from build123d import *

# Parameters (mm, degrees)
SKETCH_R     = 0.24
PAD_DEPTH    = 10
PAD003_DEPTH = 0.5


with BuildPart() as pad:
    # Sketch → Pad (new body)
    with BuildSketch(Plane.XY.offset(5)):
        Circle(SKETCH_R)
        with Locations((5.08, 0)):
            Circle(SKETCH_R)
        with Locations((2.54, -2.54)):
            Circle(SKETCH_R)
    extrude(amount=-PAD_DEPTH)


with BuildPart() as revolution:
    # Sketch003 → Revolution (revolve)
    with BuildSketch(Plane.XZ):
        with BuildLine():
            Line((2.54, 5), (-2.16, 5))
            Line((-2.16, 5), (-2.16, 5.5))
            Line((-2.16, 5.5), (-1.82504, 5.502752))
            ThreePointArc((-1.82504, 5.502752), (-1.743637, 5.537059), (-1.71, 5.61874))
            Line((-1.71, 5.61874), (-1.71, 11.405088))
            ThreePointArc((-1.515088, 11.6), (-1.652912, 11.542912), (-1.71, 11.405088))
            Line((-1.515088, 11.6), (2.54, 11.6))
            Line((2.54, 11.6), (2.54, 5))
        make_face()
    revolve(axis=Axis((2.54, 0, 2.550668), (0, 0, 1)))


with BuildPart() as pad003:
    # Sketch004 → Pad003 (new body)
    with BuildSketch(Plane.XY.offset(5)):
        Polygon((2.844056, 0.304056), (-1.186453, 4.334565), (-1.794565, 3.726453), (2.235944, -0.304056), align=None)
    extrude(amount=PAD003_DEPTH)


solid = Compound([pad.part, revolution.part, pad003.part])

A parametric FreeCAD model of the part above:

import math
import FreeCAD as App
import Part
import Sketcher
from FreeCAD import Vector
Q = App.Units.Quantity


def add_polygon(sketch, points):
    """Adds a closed chain of lines whose ends are joined by coincident constraints."""
    first, n = sketch.GeometryCount, len(points)
    for a, b in zip(points, points[1:] + points[:1]):
        sketch.addGeometry(Part.LineSegment(App.Vector(*a, 0), App.Vector(*b, 0)), False)
    for i in range(n):
        sketch.addConstraint(Sketcher.Constraint("Coincident", first + i, 2, first + (i + 1) % n, 1))

doc = App.newDocument("Part")
params = doc.addObject("Spreadsheet::Sheet", "Params")
for row, (alias, value) in enumerate([
    ("sketch1_diameter", "0.48 mm"),
    ("pad1_length", "10 mm"),
    ("sketch2_width", "4.7 mm"),
    ("sketch2_height", "6.6 mm"),
    ("sketch2_height2", "0.5 mm"),
    ("revolution_angle", "360 deg"),
    ("sketch3_length", "5.7 mm"),
    ("sketch3_length2", "0.86 mm"),
    ("pad2_length", "0.5 mm"),
], start=1):
    params.set(f"A{row}", alias)
    params.set(f"B{row}", "=" + value)
    params.setAlias(f"B{row}", alias)

body = doc.addObject("PartDesign::Body", "Body")
body.AllowCompound = True

sketch1 = body.newObject("Sketcher::SketchObject", "Sketch")
sketch1.AttachmentSupport = (doc.getObject("XY_Plane"), [""])
sketch1.MapMode = "FlatFace"
sketch1.AttachmentOffset = App.Placement(Vector(0, 0, 5), App.Rotation())
sketch1.addGeometry(Part.Circle(Vector(0, 0, 0), Vector(0, 0, 1), 0.24), False)
sketch1.addGeometry(Part.Circle(Vector(5.08, 0, 0), Vector(0, 0, 1), 0.24), False)
sketch1.addGeometry(Part.Circle(Vector(2.54, -2.54, 0), Vector(0, 0, 1), 0.24), False)
sketch1.addConstraint(Sketcher.Constraint("Coincident", 0, 3, -1, 1))
sketch1.addConstraint(Sketcher.Constraint("Equal", 0, 1))
sketch1.addConstraint(Sketcher.Constraint("Equal", 1, 2))
sketch1.addConstraint(Sketcher.Constraint("PointOnObject", 1, 3, -1))
sketch1.addConstraint(Sketcher.Constraint("Diameter", 0, Q("0.48 mm")))
sketch1.addConstraint(Sketcher.Constraint("DistanceX", -1, 1, 1, 3, Q("5.08 mm")))
sketch1.addConstraint(Sketcher.Constraint("DistanceX", -1, 1, 2, 3, Q("2.54 mm")))
sketch1.addConstraint(Sketcher.Constraint("DistanceY", 2, 3, -1, 1, Q("2.54 mm")))
sketch1.setExpression("Constraints[4]", "Params.sketch1_diameter")
pad1 = body.newObject("PartDesign::Pad", "Pad")
pad1.Profile = sketch1
pad1.setExpression("Length", "Params.pad1_length")
pad1.Reversed = True
body2 = doc.addObject("PartDesign::Body", "Body001")

sketch2 = body2.newObject("Sketcher::SketchObject", "Sketch001")
sketch2.AttachmentSupport = (doc.getObject("XZ_Plane001"), [""])
sketch2.MapMode = "FlatFace"
sketch2.addGeometry(Part.LineSegment(Vector(-2.16, 5, 0), Vector(2.54, 5, 0)), False)
sketch2.addGeometry(Part.LineSegment(Vector(2.54, 5, 0), Vector(2.54, 11.6, 0)), False)
sketch2.addGeometry(Part.LineSegment(Vector(2.54, 11.6, 0), Vector(-1.52, 11.6, 0)), False)
sketch2.addGeometry(Part.ArcOfCircle(Part.Circle(Vector(-1.52, 11.41, 0), Vector(0, 0, 1), 0.19), math.radians(90), math.radians(180)), False)
sketch2.addGeometry(Part.LineSegment(Vector(-1.71, 11.41, 0), Vector(-1.71, 5.62, 0)), False)
sketch2.addGeometry(Part.ArcOfCircle(Part.Circle(Vector(-1.83, 5.62, 0), Vector(0, 0, 1), 0.12), math.radians(-90), math.radians(0)), False)
sketch2.addGeometry(Part.LineSegment(Vector(-1.83, 5.5, 0), Vector(-2.16, 5.5, 0)), False)
sketch2.addGeometry(Part.LineSegment(Vector(-2.16, 5.5, 0), Vector(-2.16, 5, 0)), False)
sketch2.addGeometry(Part.LineSegment(Vector(2.54, 5, 0), Vector(2.54, 11.6, 0)), True)
sketch2.addConstraint(Sketcher.Constraint("Coincident", 0, 2, 1, 1))
sketch2.addConstraint(Sketcher.Constraint("Coincident", 1, 2, 2, 1))
sketch2.addConstraint(Sketcher.Constraint("Coincident", 2, 2, 3, 1))
sketch2.addConstraint(Sketcher.Constraint("Coincident", 3, 2, 4, 1))
sketch2.addConstraint(Sketcher.Constraint("Tangent", 4, 2, 5, 2))
sketch2.addConstraint(Sketcher.Constraint("Coincident", 5, 1, 6, 1))
sketch2.addConstraint(Sketcher.Constraint("Coincident", 6, 2, 7, 1))
sketch2.addConstraint(Sketcher.Constraint("Coincident", 7, 2, 0, 1))
sketch2.addConstraint(Sketcher.Constraint("Horizontal", 0))
sketch2.addConstraint(Sketcher.Constraint("Vertical", 1))
sketch2.addConstraint(Sketcher.Constraint("Horizontal", 2))
sketch2.addConstraint(Sketcher.Constraint("Vertical", 4))
sketch2.addConstraint(Sketcher.Constraint("Vertical", 7))
sketch2.addConstraint(Sketcher.Constraint("Vertical", 8))
sketch2.addConstraint(Sketcher.Constraint("Coincident", 8, 1, 0, 2))
sketch2.addConstraint(Sketcher.Constraint("Horizontal", 2, 2, 8, 2))
sketch2.addConstraint(Sketcher.Constraint("Vertical", 3, 3, 2, 2))
sketch2.addConstraint(Sketcher.Constraint("DistanceX", 0, 1, 0, 2, Q("4.7 mm")))
sketch2.addConstraint(Sketcher.Constraint("DistanceY", 1, 1, 1, 2, Q("6.6 mm")))
sketch2.addConstraint(Sketcher.Constraint("DistanceY", 7, 2, 7, 1, Q("0.5 mm")))
sketch2.addConstraint(Sketcher.Constraint("DistanceY", -1, 1, 0, 2, Q("5 mm")))
sketch2.addConstraint(Sketcher.Constraint("DistanceX", -1, 1, 0, 2, Q("2.54 mm")))
sketch2.addConstraint(Sketcher.Constraint("DistanceX", 3, 2, -1, 1, Q("1.71 mm")))
sketch2.addConstraint(Sketcher.Constraint("Radius", 3, Q("0.194911 mm")))
sketch2.addConstraint(Sketcher.Constraint("Radius", 5, Q("0.115992 mm")))
sketch2.addConstraint(Sketcher.Constraint("Distance", 6, Q("0.334971 mm")))
sketch2.addConstraint(Sketcher.Constraint("DistanceY", 4, 2, 4, 1, Q("5.786348 mm")))
sketch2.addConstraint(Sketcher.Constraint("DistanceY", -1, 1, 5, 3, Q("5.61874 mm")))
sketch2.setExpression("Constraints[17]", "Params.sketch2_width")
sketch2.setExpression("Constraints[18]", "Params.sketch2_height")
sketch2.setExpression("Constraints[19]", "Params.sketch2_height2")
revolution = body2.newObject("PartDesign::Revolution", "Revolution")
revolution.Profile = sketch2
revolution.ReferenceAxis = (sketch2, ["Axis0"])
revolution.setExpression("Angle", "Params.revolution_angle")
body3 = doc.addObject("PartDesign::Body", "Body002")

sketch3 = body3.newObject("Sketcher::SketchObject", "Sketch002")
sketch3.AttachmentSupport = (doc.getObject("XY_Plane002"), [""])
sketch3.MapMode = "FlatFace"
sketch3.AttachmentOffset = App.Placement(Vector(0, 0, 5), App.Rotation())
add_polygon(sketch3, [(2.8, 0.3), (-1.2, 4.3), (-1.8, 3.7), (2.2, -0.3)])
sketch3.addConstraint(Sketcher.Constraint("Perpendicular", 0, 1))
sketch3.addConstraint(Sketcher.Constraint("Perpendicular", 1, 2))
sketch3.addConstraint(Sketcher.Constraint("Perpendicular", 2, 3))
sketch3.addConstraint(Sketcher.Constraint("Angle", 0, Q("135 deg")))
sketch3.addConstraint(Sketcher.Constraint("Distance", 0, Q("5.7 mm")))
sketch3.addConstraint(Sketcher.Constraint("Distance", 1, Q("0.86 mm")))
sketch3.addConstraint(Sketcher.Constraint("DistanceX", 0, 2, -1, 1, Q("1.186453 mm")))
sketch3.addConstraint(Sketcher.Constraint("DistanceY", -1, 1, 0, 2, Q("4.334565 mm")))
sketch3.setExpression("Constraints[8]", "Params.sketch3_length")
sketch3.setExpression("Constraints[9]", "Params.sketch3_length2")
pad2 = body3.newObject("PartDesign::Pad", "Pad001")
pad2.Profile = sketch3
pad2.setExpression("Length", "Params.pad2_length")

doc.recompute()
